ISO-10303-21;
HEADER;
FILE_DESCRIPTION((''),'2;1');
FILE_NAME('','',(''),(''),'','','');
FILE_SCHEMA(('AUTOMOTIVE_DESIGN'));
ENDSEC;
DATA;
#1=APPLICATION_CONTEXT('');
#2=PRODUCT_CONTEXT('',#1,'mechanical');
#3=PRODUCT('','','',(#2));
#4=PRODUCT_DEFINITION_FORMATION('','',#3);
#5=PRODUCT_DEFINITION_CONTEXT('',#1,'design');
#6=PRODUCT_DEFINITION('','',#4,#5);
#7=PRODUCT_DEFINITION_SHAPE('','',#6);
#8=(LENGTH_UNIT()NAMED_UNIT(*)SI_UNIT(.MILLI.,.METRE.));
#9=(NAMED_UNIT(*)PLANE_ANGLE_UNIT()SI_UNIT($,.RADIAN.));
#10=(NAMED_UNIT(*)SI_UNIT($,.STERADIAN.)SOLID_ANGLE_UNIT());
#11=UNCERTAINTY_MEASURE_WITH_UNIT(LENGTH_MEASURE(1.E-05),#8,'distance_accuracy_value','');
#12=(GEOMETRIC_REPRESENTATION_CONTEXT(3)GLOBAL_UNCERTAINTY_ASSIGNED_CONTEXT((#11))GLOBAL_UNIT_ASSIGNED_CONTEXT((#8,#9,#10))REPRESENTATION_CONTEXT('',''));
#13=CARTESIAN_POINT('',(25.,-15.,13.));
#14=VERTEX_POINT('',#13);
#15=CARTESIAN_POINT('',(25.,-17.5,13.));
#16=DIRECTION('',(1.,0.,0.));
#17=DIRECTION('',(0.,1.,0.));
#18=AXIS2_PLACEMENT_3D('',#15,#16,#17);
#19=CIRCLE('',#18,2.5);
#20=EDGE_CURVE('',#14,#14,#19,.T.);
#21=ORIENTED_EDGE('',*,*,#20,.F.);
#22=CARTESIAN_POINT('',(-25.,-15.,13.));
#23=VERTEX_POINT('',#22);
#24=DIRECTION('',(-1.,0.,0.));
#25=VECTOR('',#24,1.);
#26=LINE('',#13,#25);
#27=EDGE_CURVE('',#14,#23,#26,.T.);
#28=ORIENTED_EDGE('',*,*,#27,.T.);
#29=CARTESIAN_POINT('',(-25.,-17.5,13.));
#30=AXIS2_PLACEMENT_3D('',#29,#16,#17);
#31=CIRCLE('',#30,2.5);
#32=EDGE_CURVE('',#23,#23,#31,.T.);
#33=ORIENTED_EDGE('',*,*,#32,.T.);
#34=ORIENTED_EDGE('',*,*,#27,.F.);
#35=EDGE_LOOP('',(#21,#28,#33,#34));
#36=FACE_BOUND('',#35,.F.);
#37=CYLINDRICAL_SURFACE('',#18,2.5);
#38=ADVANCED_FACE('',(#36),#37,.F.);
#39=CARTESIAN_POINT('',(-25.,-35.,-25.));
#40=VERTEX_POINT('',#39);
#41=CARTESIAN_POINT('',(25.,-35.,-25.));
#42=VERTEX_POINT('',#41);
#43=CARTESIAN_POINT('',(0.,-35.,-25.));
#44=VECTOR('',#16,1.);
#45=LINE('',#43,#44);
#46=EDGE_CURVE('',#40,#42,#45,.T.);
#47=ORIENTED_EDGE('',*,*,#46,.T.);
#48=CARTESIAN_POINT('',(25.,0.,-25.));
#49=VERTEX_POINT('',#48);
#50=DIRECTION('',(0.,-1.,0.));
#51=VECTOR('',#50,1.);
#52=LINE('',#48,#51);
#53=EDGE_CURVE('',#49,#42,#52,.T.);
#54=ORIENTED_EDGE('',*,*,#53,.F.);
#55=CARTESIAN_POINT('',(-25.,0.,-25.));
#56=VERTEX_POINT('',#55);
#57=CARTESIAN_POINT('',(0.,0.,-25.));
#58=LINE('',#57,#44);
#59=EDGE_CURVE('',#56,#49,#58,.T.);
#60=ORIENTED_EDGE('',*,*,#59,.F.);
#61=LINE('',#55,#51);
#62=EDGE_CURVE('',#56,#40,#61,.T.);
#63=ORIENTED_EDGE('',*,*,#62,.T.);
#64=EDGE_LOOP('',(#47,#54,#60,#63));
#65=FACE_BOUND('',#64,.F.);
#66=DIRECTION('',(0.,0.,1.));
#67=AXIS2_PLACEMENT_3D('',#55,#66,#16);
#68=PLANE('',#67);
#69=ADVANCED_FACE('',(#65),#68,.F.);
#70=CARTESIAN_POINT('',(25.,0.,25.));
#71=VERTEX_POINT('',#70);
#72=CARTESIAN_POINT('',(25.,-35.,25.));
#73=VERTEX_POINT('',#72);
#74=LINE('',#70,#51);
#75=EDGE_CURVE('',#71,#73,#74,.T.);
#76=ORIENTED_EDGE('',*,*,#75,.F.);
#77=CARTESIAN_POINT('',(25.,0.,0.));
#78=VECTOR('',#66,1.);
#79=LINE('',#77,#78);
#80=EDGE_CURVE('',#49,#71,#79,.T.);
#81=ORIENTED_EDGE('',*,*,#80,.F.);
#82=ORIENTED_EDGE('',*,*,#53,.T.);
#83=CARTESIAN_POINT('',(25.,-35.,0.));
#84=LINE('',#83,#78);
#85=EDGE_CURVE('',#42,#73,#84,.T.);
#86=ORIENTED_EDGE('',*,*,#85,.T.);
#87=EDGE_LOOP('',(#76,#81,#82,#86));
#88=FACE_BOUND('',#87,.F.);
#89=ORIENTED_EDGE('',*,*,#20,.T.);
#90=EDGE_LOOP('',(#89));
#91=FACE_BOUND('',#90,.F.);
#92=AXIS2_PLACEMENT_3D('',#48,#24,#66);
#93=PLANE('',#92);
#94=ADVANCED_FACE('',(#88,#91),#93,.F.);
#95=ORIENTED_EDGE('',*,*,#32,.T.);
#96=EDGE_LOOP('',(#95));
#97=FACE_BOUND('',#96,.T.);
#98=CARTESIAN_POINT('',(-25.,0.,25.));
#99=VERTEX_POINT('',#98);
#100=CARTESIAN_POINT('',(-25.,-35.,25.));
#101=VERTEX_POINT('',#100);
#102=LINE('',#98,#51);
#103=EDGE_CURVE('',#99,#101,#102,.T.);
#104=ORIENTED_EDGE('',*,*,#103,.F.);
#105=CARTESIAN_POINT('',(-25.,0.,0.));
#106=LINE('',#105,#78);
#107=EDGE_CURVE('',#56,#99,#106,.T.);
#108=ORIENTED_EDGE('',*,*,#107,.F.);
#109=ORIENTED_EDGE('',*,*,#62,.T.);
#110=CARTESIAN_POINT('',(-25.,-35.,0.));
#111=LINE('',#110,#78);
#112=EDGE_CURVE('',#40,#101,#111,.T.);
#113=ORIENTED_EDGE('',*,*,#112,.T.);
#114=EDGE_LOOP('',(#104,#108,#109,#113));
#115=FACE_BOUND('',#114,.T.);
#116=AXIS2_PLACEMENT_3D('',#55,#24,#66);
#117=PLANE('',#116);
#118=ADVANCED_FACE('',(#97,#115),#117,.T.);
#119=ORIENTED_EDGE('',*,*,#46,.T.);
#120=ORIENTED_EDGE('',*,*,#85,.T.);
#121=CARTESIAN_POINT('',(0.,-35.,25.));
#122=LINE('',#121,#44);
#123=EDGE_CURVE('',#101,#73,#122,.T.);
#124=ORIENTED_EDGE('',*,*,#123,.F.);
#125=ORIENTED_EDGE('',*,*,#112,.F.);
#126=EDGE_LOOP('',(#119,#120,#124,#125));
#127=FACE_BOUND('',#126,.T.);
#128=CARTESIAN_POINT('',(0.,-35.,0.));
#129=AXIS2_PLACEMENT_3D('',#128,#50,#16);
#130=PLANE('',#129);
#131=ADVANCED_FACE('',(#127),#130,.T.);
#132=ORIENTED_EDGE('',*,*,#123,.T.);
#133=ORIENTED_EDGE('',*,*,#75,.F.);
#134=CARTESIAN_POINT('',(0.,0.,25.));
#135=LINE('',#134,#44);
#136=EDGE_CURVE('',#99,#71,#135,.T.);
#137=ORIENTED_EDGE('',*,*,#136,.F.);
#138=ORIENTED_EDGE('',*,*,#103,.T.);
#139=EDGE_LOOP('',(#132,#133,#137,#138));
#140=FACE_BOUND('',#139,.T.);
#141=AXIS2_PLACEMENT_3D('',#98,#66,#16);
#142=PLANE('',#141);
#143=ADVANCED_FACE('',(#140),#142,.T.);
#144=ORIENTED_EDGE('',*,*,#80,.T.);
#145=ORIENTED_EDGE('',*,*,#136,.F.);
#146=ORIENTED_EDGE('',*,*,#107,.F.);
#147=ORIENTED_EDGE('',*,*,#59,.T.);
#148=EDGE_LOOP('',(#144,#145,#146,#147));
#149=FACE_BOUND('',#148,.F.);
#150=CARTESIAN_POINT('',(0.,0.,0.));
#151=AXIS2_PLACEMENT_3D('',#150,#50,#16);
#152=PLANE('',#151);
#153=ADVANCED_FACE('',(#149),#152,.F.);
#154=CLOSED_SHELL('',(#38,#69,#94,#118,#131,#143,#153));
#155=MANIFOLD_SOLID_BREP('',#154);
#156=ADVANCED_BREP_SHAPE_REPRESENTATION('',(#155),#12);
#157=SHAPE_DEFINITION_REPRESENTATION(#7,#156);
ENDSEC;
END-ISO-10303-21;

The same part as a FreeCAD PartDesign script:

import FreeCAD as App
import Part
import Sketcher

V = App.Vector
Q = App.Units.Quantity


def add_polygon(sketch, points):
    """Adds a closed chain of lines whose ends are joined by coincident constraints."""
    first, n = sketch.GeometryCount, len(points)
    for a, b in zip(points, points[1:] + points[:1]):
        sketch.addGeometry(Part.LineSegment(App.Vector(*a, 0), App.Vector(*b, 0)), False)
    for i in range(n):
        sketch.addConstraint(Sketcher.Constraint("Coincident", first + i, 2, first + (i + 1) % n, 1))

doc = App.newDocument("Part")
body = doc.addObject("PartDesign::Body", "Body")

# Sketch on XZ plane
sketch1 = body.newObject("Sketcher::SketchObject", "Sketch")
sketch1.AttachmentSupport = (doc.getObject("XZ_Plane"), [""])
sketch1.MapMode = "FlatFace"
add_polygon(sketch1, [(-25, 25), (-25, -25), (25, -25), (25, 25)])  # lines 0-3
sketch1.addConstraint([
    Sketcher.Constraint("Vertical", 0),
    Sketcher.Constraint("Horizontal", 1),
    Sketcher.Constraint("Vertical", 2),
    Sketcher.Constraint("Horizontal", 3),
    Sketcher.Constraint("Symmetric", 0, 2, 2, 2, -1, 1),
    Sketcher.Constraint("Equal", 3, 0),
    Sketcher.Constraint("DistanceX", 1, 1, 1, 2, Q("50 mm")),
])
pad1 = body.newObject("PartDesign::Pad", "Pad")
pad1.Profile = sketch1
pad1.Length = 35

# Sketch on YZ plane
sketch2 = body.newObject("Sketcher::SketchObject", "Sketch001")
sketch2.AttachmentSupport = (doc.getObject("YZ_Plane"), [""])
sketch2.MapMode = "FlatFace"
sketch2.AttachmentOffset = App.Placement(V(0, 0, 25), App.Rotation())
sketch2.addGeometry(Part.Circle(V(-17.5, 13, 0), V(0, 0, 1), 2.5), False)
sketch2.addConstraint([
    Sketcher.Constraint("Diameter", 0, Q("5 mm")),
    Sketcher.Constraint("DistanceY", -1, 1, 0, 3, Q("13 mm")),
    Sketcher.Constraint("DistanceX", 0, 3, -1, 1, Q("17.5 mm")),
])
pocket1 = body.newObject("PartDesign::Pocket", "Pocket")
pocket1.Profile = sketch2
pocket1.Type = "ThroughAll"

doc.recompute()
